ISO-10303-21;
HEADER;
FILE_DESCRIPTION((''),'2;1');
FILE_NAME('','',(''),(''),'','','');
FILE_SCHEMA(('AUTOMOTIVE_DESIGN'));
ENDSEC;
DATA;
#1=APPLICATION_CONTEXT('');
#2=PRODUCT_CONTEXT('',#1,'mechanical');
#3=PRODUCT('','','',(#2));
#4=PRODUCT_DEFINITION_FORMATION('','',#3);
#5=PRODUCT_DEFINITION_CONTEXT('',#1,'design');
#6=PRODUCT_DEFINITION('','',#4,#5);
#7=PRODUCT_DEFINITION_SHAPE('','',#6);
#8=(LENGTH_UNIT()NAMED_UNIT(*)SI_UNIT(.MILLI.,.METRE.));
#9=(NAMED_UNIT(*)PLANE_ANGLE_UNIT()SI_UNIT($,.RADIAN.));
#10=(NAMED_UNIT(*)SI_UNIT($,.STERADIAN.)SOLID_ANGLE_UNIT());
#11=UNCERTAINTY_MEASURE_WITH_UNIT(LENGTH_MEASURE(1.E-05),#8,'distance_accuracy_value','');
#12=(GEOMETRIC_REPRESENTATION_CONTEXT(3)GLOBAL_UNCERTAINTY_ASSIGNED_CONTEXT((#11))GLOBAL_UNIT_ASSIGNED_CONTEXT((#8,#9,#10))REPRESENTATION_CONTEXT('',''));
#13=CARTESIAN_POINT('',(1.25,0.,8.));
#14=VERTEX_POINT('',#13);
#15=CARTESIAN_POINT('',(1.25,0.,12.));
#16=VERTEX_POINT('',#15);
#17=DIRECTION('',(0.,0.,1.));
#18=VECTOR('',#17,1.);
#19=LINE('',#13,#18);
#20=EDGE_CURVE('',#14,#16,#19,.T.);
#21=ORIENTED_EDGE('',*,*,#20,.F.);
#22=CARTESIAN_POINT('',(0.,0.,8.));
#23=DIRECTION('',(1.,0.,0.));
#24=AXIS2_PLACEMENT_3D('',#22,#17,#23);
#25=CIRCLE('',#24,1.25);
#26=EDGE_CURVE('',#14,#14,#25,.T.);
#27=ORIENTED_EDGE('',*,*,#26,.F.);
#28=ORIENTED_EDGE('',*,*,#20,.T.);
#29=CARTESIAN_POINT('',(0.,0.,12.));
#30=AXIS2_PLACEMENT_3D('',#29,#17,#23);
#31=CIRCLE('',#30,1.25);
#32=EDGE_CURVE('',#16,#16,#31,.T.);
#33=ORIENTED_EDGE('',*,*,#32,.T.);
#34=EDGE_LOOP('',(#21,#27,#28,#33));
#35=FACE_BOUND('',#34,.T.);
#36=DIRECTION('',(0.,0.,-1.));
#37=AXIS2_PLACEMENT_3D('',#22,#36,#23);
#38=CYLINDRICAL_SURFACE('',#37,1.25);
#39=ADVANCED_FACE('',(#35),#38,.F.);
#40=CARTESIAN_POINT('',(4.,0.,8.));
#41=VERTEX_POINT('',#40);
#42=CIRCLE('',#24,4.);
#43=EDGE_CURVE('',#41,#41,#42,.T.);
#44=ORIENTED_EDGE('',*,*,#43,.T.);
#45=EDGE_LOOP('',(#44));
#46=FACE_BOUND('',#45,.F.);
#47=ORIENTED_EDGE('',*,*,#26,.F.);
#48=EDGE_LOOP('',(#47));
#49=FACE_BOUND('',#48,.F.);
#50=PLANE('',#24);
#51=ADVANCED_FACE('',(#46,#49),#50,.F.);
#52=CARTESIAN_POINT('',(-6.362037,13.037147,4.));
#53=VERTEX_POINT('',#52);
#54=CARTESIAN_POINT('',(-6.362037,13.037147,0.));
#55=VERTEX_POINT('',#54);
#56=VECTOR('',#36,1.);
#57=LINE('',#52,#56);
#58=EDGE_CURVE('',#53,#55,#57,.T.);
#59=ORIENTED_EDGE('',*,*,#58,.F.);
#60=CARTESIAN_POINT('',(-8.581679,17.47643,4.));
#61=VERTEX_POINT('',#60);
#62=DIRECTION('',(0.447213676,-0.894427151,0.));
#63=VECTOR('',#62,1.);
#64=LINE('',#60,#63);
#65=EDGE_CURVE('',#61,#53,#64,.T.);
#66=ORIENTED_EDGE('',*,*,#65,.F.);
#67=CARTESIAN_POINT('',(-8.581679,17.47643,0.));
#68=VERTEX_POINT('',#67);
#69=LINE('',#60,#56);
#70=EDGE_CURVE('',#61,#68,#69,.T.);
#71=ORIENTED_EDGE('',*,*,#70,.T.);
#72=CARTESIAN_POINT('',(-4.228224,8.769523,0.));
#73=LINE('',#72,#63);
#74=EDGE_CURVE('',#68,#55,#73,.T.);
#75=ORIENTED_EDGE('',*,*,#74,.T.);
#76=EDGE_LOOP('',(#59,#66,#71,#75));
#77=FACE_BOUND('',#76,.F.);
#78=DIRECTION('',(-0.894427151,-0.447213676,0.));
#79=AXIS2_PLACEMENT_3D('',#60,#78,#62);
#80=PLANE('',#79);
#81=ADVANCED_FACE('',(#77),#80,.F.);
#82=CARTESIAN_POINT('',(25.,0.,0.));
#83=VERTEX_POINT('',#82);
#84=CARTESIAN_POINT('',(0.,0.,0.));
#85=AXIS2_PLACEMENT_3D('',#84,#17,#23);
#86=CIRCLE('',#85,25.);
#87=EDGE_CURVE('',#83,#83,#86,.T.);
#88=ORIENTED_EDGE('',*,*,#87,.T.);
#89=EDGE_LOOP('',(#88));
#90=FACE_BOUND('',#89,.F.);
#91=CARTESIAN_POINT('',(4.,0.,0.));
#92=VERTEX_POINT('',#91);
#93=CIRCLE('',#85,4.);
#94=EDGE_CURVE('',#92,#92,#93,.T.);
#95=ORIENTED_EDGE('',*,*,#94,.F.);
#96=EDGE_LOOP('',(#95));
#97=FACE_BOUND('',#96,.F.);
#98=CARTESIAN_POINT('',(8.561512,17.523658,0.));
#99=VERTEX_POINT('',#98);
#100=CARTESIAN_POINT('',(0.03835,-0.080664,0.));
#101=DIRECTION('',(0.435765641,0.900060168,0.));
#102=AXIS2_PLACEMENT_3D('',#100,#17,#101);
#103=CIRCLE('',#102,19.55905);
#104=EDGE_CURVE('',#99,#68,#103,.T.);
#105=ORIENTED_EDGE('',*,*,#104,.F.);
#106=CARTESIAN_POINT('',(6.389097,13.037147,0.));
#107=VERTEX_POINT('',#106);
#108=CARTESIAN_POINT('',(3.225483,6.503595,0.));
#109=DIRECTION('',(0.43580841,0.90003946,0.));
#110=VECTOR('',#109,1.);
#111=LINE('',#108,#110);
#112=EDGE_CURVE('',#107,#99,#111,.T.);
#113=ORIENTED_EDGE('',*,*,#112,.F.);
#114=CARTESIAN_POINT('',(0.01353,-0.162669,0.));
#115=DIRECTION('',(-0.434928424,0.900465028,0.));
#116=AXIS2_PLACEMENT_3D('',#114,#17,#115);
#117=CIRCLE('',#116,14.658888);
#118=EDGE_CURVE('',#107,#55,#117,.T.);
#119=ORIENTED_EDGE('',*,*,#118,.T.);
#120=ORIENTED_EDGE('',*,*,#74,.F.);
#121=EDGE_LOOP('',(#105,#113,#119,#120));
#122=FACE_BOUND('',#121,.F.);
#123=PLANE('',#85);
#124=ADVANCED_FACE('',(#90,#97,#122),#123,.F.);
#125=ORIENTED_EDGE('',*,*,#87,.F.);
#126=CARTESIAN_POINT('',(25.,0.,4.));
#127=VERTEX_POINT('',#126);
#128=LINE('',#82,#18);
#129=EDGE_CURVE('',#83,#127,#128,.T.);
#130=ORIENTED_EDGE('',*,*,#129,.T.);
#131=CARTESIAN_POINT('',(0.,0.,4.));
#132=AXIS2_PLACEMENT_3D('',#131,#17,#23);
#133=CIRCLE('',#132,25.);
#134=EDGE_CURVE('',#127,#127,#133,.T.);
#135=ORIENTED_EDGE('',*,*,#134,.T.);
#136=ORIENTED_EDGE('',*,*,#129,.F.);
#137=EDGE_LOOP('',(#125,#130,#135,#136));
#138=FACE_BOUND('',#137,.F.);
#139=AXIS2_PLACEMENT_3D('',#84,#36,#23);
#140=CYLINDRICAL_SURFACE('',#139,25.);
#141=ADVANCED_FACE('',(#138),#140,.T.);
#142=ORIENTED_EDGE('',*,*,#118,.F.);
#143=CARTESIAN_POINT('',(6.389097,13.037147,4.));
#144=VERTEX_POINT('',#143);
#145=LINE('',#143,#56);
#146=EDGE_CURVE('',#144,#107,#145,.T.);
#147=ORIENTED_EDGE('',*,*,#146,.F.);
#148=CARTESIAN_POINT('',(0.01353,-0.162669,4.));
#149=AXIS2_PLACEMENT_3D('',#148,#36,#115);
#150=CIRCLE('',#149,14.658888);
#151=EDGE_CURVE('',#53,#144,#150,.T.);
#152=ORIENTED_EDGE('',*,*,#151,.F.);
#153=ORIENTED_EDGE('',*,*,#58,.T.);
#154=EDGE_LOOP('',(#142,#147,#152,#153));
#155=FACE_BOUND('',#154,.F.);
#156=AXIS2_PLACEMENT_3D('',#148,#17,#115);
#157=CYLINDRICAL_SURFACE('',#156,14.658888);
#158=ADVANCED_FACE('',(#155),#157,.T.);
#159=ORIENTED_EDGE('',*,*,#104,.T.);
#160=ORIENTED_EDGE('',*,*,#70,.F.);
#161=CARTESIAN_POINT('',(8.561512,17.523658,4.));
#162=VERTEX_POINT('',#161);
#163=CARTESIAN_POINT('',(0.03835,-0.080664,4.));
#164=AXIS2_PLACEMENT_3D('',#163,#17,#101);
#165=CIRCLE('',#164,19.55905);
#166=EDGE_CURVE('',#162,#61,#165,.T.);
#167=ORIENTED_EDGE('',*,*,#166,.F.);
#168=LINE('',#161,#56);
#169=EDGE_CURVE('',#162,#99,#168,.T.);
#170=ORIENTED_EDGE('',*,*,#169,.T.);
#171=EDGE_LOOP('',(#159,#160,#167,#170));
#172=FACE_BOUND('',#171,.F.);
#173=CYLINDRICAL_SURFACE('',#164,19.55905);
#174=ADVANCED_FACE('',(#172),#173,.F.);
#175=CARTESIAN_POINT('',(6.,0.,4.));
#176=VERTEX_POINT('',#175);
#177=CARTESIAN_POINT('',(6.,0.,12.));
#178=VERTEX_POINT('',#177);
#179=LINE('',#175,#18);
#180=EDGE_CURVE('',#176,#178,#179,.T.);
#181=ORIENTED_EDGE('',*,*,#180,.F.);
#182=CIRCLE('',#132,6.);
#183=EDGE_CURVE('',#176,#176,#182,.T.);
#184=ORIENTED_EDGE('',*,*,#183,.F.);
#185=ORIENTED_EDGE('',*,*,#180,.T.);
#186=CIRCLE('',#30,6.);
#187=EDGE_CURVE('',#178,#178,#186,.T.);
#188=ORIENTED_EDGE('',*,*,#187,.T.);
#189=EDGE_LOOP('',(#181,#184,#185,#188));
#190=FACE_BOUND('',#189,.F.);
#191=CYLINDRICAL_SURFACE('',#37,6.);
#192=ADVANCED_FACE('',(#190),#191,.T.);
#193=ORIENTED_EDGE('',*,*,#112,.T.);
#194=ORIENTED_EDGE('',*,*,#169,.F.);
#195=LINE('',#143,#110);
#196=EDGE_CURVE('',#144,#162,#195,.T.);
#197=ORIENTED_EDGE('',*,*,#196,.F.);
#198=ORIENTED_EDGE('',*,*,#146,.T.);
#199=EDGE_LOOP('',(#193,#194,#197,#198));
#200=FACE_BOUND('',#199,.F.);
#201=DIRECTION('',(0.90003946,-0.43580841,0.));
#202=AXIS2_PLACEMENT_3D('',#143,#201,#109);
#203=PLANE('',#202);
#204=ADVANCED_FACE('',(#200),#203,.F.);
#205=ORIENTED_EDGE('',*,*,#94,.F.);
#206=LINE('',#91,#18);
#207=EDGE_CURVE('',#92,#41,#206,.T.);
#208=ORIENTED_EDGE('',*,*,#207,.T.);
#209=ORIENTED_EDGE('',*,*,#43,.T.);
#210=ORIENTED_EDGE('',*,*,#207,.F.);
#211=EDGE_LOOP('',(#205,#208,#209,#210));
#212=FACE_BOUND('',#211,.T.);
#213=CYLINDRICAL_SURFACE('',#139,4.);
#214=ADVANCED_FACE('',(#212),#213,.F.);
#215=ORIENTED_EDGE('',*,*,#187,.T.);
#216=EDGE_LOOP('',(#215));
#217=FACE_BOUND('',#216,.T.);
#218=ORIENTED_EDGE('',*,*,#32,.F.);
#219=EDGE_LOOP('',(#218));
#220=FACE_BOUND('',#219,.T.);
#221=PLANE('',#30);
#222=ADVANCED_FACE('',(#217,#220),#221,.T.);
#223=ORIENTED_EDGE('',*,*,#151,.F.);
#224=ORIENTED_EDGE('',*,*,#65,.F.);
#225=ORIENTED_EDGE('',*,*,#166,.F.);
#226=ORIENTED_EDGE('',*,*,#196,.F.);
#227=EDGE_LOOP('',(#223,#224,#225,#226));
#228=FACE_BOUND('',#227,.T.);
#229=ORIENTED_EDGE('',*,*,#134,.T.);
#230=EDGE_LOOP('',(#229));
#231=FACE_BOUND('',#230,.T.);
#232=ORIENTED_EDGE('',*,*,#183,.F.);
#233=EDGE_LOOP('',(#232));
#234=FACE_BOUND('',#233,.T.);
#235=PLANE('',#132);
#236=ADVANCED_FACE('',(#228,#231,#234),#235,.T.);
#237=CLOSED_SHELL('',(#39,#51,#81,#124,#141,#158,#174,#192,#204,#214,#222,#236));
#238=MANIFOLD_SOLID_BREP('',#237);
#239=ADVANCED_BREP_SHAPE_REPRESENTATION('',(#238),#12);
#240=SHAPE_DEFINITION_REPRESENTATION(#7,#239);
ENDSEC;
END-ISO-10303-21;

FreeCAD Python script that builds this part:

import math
import FreeCAD as App
import Part
import Sketcher

V = App.Vector

doc = App.newDocument("Part")
params = doc.addObject("Spreadsheet::Sheet", "Params")
for row, (alias, value) in enumerate([
    ("sketch1_diameter", "50 mm"),
    ("sketch1_diameter2", "12 mm"),
    ("pad1_length", "4 mm"),
    ("sketch2_diameter", "12 mm"),
    ("sketch2_diameter2", "8 mm"),
    ("pad2_length", "8 mm"),
    ("pocket1_length", "25 mm"),
    ("sketch4_diameter", "12 mm"),
    ("sketch4_diameter2", "2.5 mm"),
    ("pad3_length", "4 mm"),
], start=1):
    params.set(f"A{row}", alias)
    params.set(f"B{row}", "=" + value)
    params.setAlias(f"B{row}", alias)

body = doc.addObject("PartDesign::Body", "Body")

# Sketch on XY plane
sketch1 = body.newObject("Sketcher::SketchObject", "Sketch")
sketch1.AttachmentSupport = (doc.getObject("XY_Plane"), [""])
sketch1.MapMode = "FlatFace"
sketch1.addGeometry(Part.Circle(V(0, 0, 0), V(0, 0, 1), 25), False)
sketch1.addGeometry(Part.Circle(V(0, 0, 0), V(0, 0, 1), 6), False)
sketch1.addConstraint(Sketcher.Constraint("Coincident", 0, 3, -1, 1))
sketch1.addConstraint(Sketcher.Constraint("Coincident", 1, 3, -1, 1))
sketch1.addConstraint(Sketcher.Constraint("Diameter", 0, 50.0))
sketch1.addConstraint(Sketcher.Constraint("Diameter", 1, 12.0))
sketch1.setExpression("Constraints[2]", "Params.sketch1_diameter")
sketch1.setExpression("Constraints[3]", "Params.sketch1_diameter2")
pad1 = body.newObject("PartDesign::Pad", "Pad")
pad1.Profile = sketch1
pad1.setExpression("Length", "Params.pad1_length")

# Sketch on XY plane
sketch2 = body.newObject("Sketcher::SketchObject", "Sketch001")
sketch2.AttachmentSupport = (doc.getObject("XY_Plane"), [""])
sketch2.MapMode = "FlatFace"
sketch2.addGeometry(Part.Circle(V(0, 0, 0), V(0, 0, 1), 6), False)
sketch2.addGeometry(Part.Circle(V(0, 0, 0), V(0, 0, 1), 4), False)
sketch2.addConstraint(Sketcher.Constraint("Coincident", 0, 3, -1, 1))
sketch2.addConstraint(Sketcher.Constraint("Coincident", 1, 3, -1, 1))
sketch2.addConstraint(Sketcher.Constraint("Diameter", 0, 12.0))
sketch2.addConstraint(Sketcher.Constraint("Diameter", 1, 8.0))
sketch2.setExpression("Constraints[2]", "Params.sketch2_diameter")
sketch2.setExpression("Constraints[3]", "Params.sketch2_diameter2")
pad2 = body.newObject("PartDesign::Pad", "Pad001")
pad2.Profile = sketch2
pad2.setExpression("Length", "Params.pad2_length")

# Sketch on XY plane
sketch3 = body.newObject("Sketcher::SketchObject", "Sketch002")
sketch3.AttachmentSupport = (doc.getObject("XY_Plane"), [""])
sketch3.MapMode = "FlatFace"
sketch3.AttachmentOffset = App.Placement(V(0, 0, 4), App.Rotation())
sketch3.addGeometry(Part.ArcOfCircle(Part.Circle(V(0, -0.1, 0), V(0, 0, 1), 19.6), math.radians(64), math.radians(116)), False)
sketch3.addGeometry(Part.LineSegment(V(-8.6, 17.5, 0), V(-6.4, 13, 0)), False)
sketch3.addGeometry(Part.ArcOfCircle(Part.Circle(V(0, -0.2, 0), V(0, 0, 1), 14.7), math.radians(64), math.radians(116)), False)
sketch3.addGeometry(Part.LineSegment(V(6.4, 13, 0), V(8.6, 17.5, 0)), False)
sketch3.addConstraint(Sketcher.Constraint("Coincident", 0, 2, 1, 1))
sketch3.addConstraint(Sketcher.Constraint("Coincident", 1, 2, 2, 2))
sketch3.addConstraint(Sketcher.Constraint("Coincident", 2, 1, 3, 1))
sketch3.addConstraint(Sketcher.Constraint("Coincident", 3, 2, 0, 1))
sketch3.addConstraint(Sketcher.Constraint("Horizontal", 1, 2, 2, 1))
sketch3.addConstraint(Sketcher.Constraint("Radius", 0, 19.55905))
sketch3.addConstraint(Sketcher.Constraint("Radius", 2, 14.658888))
sketch3.addConstraint(Sketcher.Constraint("DistanceY", 2, 3, 0, 2, 17.639099))
sketch3.addConstraint(Sketcher.Constraint("Distance", 1, 4.96327))
sketch3.addConstraint(Sketcher.Constraint("DistanceX", -1, 1, 0, 3, 0.03835))
sketch3.addConstraint(Sketcher.Constraint("DistanceX", -1, 1, 2, 3, 0.01353))
sketch3.addConstraint(Sketcher.Constraint("DistanceY", 2, 3, -1, 1, 0.162669))
sketch3.addConstraint(Sketcher.Constraint("DistanceY", -1, 1, 3, 2, 17.523658))
sketch3.addConstraint(Sketcher.Constraint("DistanceY", 0, 3, 1, 2, 13.117811))
pocket1 = body.newObject("PartDesign::Pocket", "Pocket")
pocket1.Profile = sketch3
pocket1.setExpression("Length", "Params.pocket1_length")

# Sketch on XY plane
sketch4 = body.newObject("Sketcher::SketchObject", "Sketch003")
sketch4.AttachmentSupport = (doc.getObject("XY_Plane"), [""])
sketch4.MapMode = "FlatFace"
sketch4.AttachmentOffset = App.Placement(V(0, 0, 8), App.Rotation())
sketch4.addGeometry(Part.Circle(V(0, 0, 0), V(0, 0, 1), 6), False)
sketch4.addGeometry(Part.Circle(V(0, 0, 0), V(0, 0, 1), 1.2), False)
sketch4.addConstraint(Sketcher.Constraint("Coincident", 0, 3, -1, 1))
sketch4.addConstraint(Sketcher.Constraint("Coincident", 1, 3, -1, 1))
sketch4.addConstraint(Sketcher.Constraint("Diameter", 0, 12.0))
sketch4.addConstraint(Sketcher.Constraint("Diameter", 1, 2.5))
sketch4.setExpression("Constraints[2]", "Params.sketch4_diameter")
sketch4.setExpression("Constraints[3]", "Params.sketch4_diameter2")
pad3 = body.newObject("PartDesign::Pad", "Pad002")
pad3.Profile = sketch4
pad3.setExpression("Length", "Params.pad3_length")

doc.recompute()
